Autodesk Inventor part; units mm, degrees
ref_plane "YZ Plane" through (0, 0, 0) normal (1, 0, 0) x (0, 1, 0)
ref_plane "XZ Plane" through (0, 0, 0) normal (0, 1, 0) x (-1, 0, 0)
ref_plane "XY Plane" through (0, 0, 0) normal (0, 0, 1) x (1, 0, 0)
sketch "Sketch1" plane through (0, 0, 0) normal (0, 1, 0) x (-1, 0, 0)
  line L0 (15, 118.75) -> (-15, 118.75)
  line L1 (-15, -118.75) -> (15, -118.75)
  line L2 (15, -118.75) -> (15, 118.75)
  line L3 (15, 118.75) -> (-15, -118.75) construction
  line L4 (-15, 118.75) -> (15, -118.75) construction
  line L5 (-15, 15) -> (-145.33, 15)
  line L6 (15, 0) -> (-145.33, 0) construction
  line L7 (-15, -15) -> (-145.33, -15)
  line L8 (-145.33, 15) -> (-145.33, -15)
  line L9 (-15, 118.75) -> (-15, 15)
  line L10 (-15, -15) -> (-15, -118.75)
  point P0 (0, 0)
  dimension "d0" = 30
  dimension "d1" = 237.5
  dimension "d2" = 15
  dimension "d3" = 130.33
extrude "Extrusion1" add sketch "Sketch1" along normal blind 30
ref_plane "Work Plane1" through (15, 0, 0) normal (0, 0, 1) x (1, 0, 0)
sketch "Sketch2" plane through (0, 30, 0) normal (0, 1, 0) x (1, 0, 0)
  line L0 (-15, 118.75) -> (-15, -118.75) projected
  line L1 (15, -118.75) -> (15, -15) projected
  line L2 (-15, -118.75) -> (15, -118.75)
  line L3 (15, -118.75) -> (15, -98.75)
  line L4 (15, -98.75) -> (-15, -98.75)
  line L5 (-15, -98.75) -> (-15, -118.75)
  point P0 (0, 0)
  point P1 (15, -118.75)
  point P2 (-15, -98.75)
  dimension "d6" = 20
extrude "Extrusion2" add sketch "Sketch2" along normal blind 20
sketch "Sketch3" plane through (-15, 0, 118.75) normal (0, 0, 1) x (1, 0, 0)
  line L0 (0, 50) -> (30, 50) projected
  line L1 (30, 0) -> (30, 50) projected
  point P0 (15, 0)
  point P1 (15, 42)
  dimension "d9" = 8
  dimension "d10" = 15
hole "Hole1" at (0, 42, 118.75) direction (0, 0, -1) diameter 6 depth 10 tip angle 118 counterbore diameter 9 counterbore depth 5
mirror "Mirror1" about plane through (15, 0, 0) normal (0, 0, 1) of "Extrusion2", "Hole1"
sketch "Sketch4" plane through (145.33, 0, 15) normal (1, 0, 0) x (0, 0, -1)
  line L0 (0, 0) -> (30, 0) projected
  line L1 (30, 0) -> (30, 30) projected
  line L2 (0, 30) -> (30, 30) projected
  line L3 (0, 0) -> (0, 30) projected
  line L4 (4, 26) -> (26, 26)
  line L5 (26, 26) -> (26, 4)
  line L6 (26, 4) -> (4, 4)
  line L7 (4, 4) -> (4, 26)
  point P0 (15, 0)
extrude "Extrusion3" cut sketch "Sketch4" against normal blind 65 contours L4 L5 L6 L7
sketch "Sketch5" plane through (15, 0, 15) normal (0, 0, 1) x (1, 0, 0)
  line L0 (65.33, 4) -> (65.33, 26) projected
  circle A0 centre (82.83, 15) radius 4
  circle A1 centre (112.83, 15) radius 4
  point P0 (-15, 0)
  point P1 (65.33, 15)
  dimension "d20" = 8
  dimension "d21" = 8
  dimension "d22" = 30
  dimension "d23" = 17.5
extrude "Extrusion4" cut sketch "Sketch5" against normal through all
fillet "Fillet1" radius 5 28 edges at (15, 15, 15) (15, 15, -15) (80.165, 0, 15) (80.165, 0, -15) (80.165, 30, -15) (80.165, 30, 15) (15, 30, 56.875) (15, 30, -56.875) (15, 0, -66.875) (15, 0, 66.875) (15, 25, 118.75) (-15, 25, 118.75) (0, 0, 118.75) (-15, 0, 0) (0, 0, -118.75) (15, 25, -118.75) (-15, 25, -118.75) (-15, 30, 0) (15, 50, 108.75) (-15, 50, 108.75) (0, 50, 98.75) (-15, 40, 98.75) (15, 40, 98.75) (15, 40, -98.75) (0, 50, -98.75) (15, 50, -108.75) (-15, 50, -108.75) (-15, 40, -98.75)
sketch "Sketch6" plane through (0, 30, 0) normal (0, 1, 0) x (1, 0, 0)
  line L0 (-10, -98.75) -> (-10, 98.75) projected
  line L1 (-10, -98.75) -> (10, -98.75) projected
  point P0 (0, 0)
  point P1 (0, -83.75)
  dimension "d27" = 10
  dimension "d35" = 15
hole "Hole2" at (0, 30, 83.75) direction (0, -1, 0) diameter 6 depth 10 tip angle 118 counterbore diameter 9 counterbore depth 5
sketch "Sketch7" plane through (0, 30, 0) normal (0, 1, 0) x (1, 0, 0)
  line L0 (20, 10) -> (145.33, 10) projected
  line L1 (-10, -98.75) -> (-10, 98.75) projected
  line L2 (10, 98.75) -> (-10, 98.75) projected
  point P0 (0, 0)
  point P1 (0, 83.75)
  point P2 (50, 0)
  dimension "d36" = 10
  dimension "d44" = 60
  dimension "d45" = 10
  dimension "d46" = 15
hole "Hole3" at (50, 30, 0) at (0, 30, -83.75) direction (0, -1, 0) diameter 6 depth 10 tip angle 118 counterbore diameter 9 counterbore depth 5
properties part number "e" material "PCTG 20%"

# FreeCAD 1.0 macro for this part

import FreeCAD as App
import Part
import Sketcher
from FreeCAD import Vector


def edges_at(feature, points):
    """Names of the edges that pass closest to the given points."""
    edges = feature.Shape.Edges
    near = lambda p: min(range(len(edges)), key=lambda i: edges[i].distToShape(Part.Vertex(*p))[0])
    return sorted({f"Edge{near(p) + 1}" for p in points})


def add_polygon(sketch, points):
    """Adds a closed chain of lines whose ends are joined by coincident constraints."""
    first, n = sketch.GeometryCount, len(points)
    for a, b in zip(points, points[1:] + points[:1]):
        sketch.addGeometry(Part.LineSegment(App.Vector(*a, 0), App.Vector(*b, 0)), False)
    for i in range(n):
        sketch.addConstraint(Sketcher.Constraint("Coincident", first + i, 2, first + (i + 1) % n, 1))

doc = App.newDocument("Part")
body = doc.addObject("PartDesign::Body", "Body")

# Sketch on XZ plane
sketch1 = body.newObject("Sketcher::SketchObject", "Sketch")
sketch1.AttachmentSupport = (doc.getObject("XZ_Plane"), [""])
sketch1.MapMode = "FlatFace"
add_polygon(sketch1, [(-15, -119), (-15, 119), (15, 119), (15, 15), (145, 15), (145, -15), (15, -15), (15, -119)])  # lines 0-7
sketch1.addConstraint(Sketcher.Constraint("Vertical", 0))
sketch1.addConstraint(Sketcher.Constraint("Horizontal", 1))
sketch1.addConstraint(Sketcher.Constraint("Vertical", 2))
sketch1.addConstraint(Sketcher.Constraint("Horizontal", 3))
sketch1.addConstraint(Sketcher.Constraint("Vertical", 4))
sketch1.addConstraint(Sketcher.Constraint("Horizontal", 5))
sketch1.addConstraint(Sketcher.Constraint("Vertical", 6))
sketch1.addConstraint(Sketcher.Constraint("Horizontal", 7))
sketch1.addConstraint(Sketcher.Constraint("Symmetric", 0, 2, 6, 2, -1, 1))
sketch1.addConstraint(Sketcher.Constraint("Symmetric", 2, 2, 5, 2, -1))
sketch1.addConstraint(Sketcher.Constraint("Equal", 7, 4))
sketch1.addConstraint(Sketcher.Constraint("DistanceX", 1, 1, 1, 2, 30.0))
sketch1.addConstraint(Sketcher.Constraint("DistanceY", 0, 1, 0, 2, 237.5))
sketch1.addConstraint(Sketcher.Constraint("DistanceX", 3, 1, 3, 2, 130.33))
pad1 = body.newObject("PartDesign::Pad", "Pad")
pad1.Profile = sketch1
pad1.Length = 30
pad1.Reversed = True

# Sketch on XZ plane
sketch2 = body.newObject("Sketcher::SketchObject", "Sketch001")
sketch2.AttachmentSupport = (doc.getObject("XZ_Plane"), [""])
sketch2.MapMode = "FlatFace"
sketch2.AttachmentOffset = App.Placement(Vector(0, 0, -30), App.Rotation())
add_polygon(sketch2, [(15, 99), (-15, 99), (-15, 119), (15, 119)])  # lines 0-3
sketch2.addConstraint(Sketcher.Constraint("Horizontal", 0))
sketch2.addConstraint(Sketcher.Constraint("Vertical", 1))
sketch2.addConstraint(Sketcher.Constraint("Horizontal", 2))
sketch2.addConstraint(Sketcher.Constraint("Vertical", 3))
sketch2.addConstraint(Sketcher.Constraint("DistanceY", 1, 1, 1, 2, 20.0))
sketch2.addConstraint(Sketcher.Constraint("DistanceX", 0, 2, 0, 1, 30.0))
sketch2.addConstraint(Sketcher.Constraint("DistanceX", 0, 2, -1, 1, 15.0))
sketch2.addConstraint(Sketcher.Constraint("DistanceY", -1, 1, 0, 2, 98.75))
pad2 = body.newObject("PartDesign::Pad", "Pad001")
pad2.Profile = sketch2
pad2.Length = 20
pad2.Reversed = True

# Sketch on XY plane
sketch3 = body.newObject("Sketcher::SketchObject", "Sketch002")
sketch3.AttachmentSupport = (doc.getObject("XY_Plane"), [""])
sketch3.MapMode = "FlatFace"
sketch3.AttachmentOffset = App.Placement(Vector(0, 0, 118.75), App.Rotation())
sketch3.addGeometry(Part.Circle(Vector(0, 42, 0), Vector(0, 0, 1), 3), False)
sketch3.addConstraint(Sketcher.Constraint("PointOnObject", 0, 3, -2))
sketch3.addConstraint(Sketcher.Constraint("Diameter", 0, 6.0))
sketch3.addConstraint(Sketcher.Constraint("DistanceY", -1, 1, 0, 3, 42.0))
doc.recompute()
hole = body.newObject("PartDesign::Hole", "Hole")
hole.Profile = sketch3
hole.ThreadType = "None"
hole.Diameter = 6
hole.DepthType = "Dimension"
hole.Depth = 10
hole.DrillPoint = "Angled"
hole.DrillPointAngle = 118
hole.HoleCutType = "Counterbore"
hole.HoleCutDiameter = 9
hole.HoleCutDepth = 5
doc.recompute()

mirrored = body.newObject("PartDesign::Mirrored", "Mirrored")
mirrored.Originals = [pad2, hole]
mirrored.MirrorPlane = (doc.getObject("XY_Plane"), [""])
body.Tip = mirrored

# Sketch on YZ plane
sketch4 = body.newObject("Sketcher::SketchObject", "Sketch003")
sketch4.AttachmentSupport = (doc.getObject("YZ_Plane"), [""])
sketch4.MapMode = "FlatFace"
sketch4.AttachmentOffset = App.Placement(Vector(0, 0, 145.33), App.Rotation())
add_polygon(sketch4, [(26, -11), (26, 11), (4, 11), (4, -11)])  # lines 0-3
sketch4.addConstraint(Sketcher.Constraint("Vertical", 0))
sketch4.addConstraint(Sketcher.Constraint("Horizontal", 1))
sketch4.addConstraint(Sketcher.Constraint("Vertical", 2))
sketch4.addConstraint(Sketcher.Constraint("Horizontal", 3))
sketch4.addConstraint(Sketcher.Constraint("Equal", 3, 0))
sketch4.addConstraint(Sketcher.Constraint("DistanceX", 1, 2, 1, 1, 22.0))
sketch4.addConstraint(Sketcher.Constraint("DistanceX", -1, 1, 0, 2, 26.0))
sketch4.addConstraint(Sketcher.Constraint("DistanceY", -1, 1, 0, 2, 11.0))
pocket1 = body.newObject("PartDesign::Pocket", "Pocket")
pocket1.Profile = sketch4
pocket1.Length = 65

# Sketch on XY plane
sketch5 = body.newObject("Sketcher::SketchObject", "Sketch004")
sketch5.AttachmentSupport = (doc.getObject("XY_Plane"), [""])
sketch5.MapMode = "FlatFace"
sketch5.AttachmentOffset = App.Placement(Vector(0, 0, 15), App.Rotation())
sketch5.addGeometry(Part.Circle(Vector(97.8, 15, 0), Vector(0, 0, 1), 4), False)
sketch5.addGeometry(Part.Circle(Vector(127.8, 15, 0), Vector(0, 0, 1), 4), False)
sketch5.addConstraint(Sketcher.Constraint("Equal", 0, 1))
sketch5.addConstraint(Sketcher.Constraint("Horizontal", 0, 3, 1, 3))
sketch5.addConstraint(Sketcher.Constraint("Diameter", 0, 8.0))
sketch5.addConstraint(Sketcher.Constraint("DistanceX", 0, 3, 1, 3, 30.0))
sketch5.addConstraint(Sketcher.Constraint("DistanceY", -1, 1, 0, 3, 15.0))
sketch5.addConstraint(Sketcher.Constraint("DistanceX", -1, 1, 0, 3, 97.83))
pocket2 = body.newObject("PartDesign::Pocket", "Pocket001")
pocket2.Profile = sketch5
pocket2.Type = "ThroughAll"
doc.recompute()

fillet = body.newObject("PartDesign::Fillet", "Fillet")
fillet.Base = (pocket2, edges_at(pocket2, [
    (15, 15, 15),
    (15, 15, -15),
    (80.165, 0, 15),
    (80.165, 0, -15),
    (80.165, 30, -15),
    (80.165, 30, 15),
    (15, 30, 56.875),
    (15, 30, -56.875),
    (15, 0, -66.875),
    (15, 0, 66.875),
    (15, 25, 118.75),
    (-15, 25, 118.75),
    (0, 0, 118.75),
    (-15, 0, 0),
    (0, 0, -118.75),
    (15, 25, -118.75),
    (-15, 25, -118.75),
    (-15, 30, 0),
    (15, 50, 108.75),
    (-15, 50, 108.75),
    (0, 50, 98.75),
    (-15, 40, 98.75),
    (15, 40, 98.75),
    (15, 40, -98.75),
    (0, 50, -98.75),
    (15, 50, -108.75),
    (-15, 50, -108.75),
    (-15, 40, -98.75),
]))
fillet.Radius = 5

# Sketch on XZ plane
sketch6 = body.newObject("Sketcher::SketchObject", "Sketch005")
sketch6.AttachmentSupport = (doc.getObject("XZ_Plane"), [""])
sketch6.MapMode = "FlatFace"
sketch6.AttachmentOffset = App.Placement(Vector(0, 0, -30), App.Rotation())
sketch6.addGeometry(Part.Circle(Vector(0, 83.8, 0), Vector(0, 0, 1), 3), False)
sketch6.addConstraint(Sketcher.Constraint("PointOnObject", 0, 3, -2))
sketch6.addConstraint(Sketcher.Constraint("Diameter", 0, 6.0))
sketch6.addConstraint(Sketcher.Constraint("DistanceY", -1, 1, 0, 3, 83.75))
doc.recompute()
hole2 = body.newObject("PartDesign::Hole", "Hole001")
hole2.Profile = sketch6
hole2.ThreadType = "None"
hole2.Diameter = 6
hole2.DepthType = "Dimension"
hole2.Depth = 10
hole2.DrillPoint = "Angled"
hole2.DrillPointAngle = 118
hole2.HoleCutType = "Counterbore"
hole2.HoleCutDiameter = 9
hole2.HoleCutDepth = 5
hole2.Reversed = True

# Sketch on XZ plane
sketch7 = body.newObject("Sketcher::SketchObject", "Sketch006")
sketch7.AttachmentSupport = (doc.getObject("XZ_Plane"), [""])
sketch7.MapMode = "FlatFace"
sketch7.AttachmentOffset = App.Placement(Vector(0, 0, -30), App.Rotation())
sketch7.addGeometry(Part.Circle(Vector(50, 0, 0), Vector(0, 0, 1), 3), False)
sketch7.addGeometry(Part.Circle(Vector(0, -83.8, 0), Vector(0, 0, 1), 3), False)
sketch7.addConstraint(Sketcher.Constraint("Equal", 0, 1))
sketch7.addConstraint(Sketcher.Constraint("PointOnObject", 0, 3, -1))
sketch7.addConstraint(Sketcher.Constraint("PointOnObject", 1, 3, -2))
sketch7.addConstraint(Sketcher.Constraint("Diameter", 0, 6.0))
sketch7.addConstraint(Sketcher.Constraint("DistanceX", -1, 1, 0, 3, 50.0))
sketch7.addConstraint(Sketcher.Constraint("DistanceY", 1, 3, -1, 1, 83.75))
doc.recompute()
hole3 = body.newObject("PartDesign::Hole", "Hole002")
hole3.Profile = sketch7
hole3.ThreadType = "None"
hole3.Diameter = 6
hole3.DepthType = "Dimension"
hole3.Depth = 10
hole3.DrillPoint = "Angled"
hole3.DrillPointAngle = 118
hole3.HoleCutType = "Counterbore"
hole3.HoleCutDiameter = 9
hole3.HoleCutDepth = 5
hole3.Reversed = True

doc.recompute()
